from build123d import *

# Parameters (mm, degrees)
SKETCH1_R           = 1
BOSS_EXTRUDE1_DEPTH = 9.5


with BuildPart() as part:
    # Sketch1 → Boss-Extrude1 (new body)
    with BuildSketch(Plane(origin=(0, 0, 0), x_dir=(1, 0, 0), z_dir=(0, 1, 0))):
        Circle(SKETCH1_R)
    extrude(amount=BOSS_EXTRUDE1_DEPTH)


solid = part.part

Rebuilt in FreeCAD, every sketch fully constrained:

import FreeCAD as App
import Part
import Sketcher
from FreeCAD import Vector
Q = App.Units.Quantity

doc = App.newDocument("Part")
params = doc.addObject("Spreadsheet::Sheet", "Params")
for row, (alias, value) in enumerate([
    ("sketch1_diameter", "2 mm"),
    ("pad1_length", "9.5 mm"),
], start=1):
    params.set(f"A{row}", alias)
    params.set(f"B{row}", "=" + value)
    params.setAlias(f"B{row}", alias)

body = doc.addObject("PartDesign::Body", "Body")

# Sketch on XZ plane
sketch1 = doc.addObject("Sketcher::SketchObject", "Sketch")
body.addObject(sketch1)
sketch1.AttachmentSupport = (doc.XZ_Plane, [""])
sketch1.MapMode = "FlatFace"
sketch1.addGeometry(Part.Circle(Vector(0, 0, 0), Vector(0, 0, 1), 1), False)
sketch1.addConstraint([
    Sketcher.Constraint("Coincident", 0, 3, -1, 1),
    Sketcher.Constraint("Diameter", 0, Q("2 mm")),
])
sketch1.setExpression("Constraints[1]", "Params.sketch1_diameter")
pad1 = doc.addObject("PartDesign::Pad", "Pad")
body.addObject(pad1)
pad1.Profile = sketch1
pad1.setExpression("Length", "Params.pad1_length")
pad1.Reversed = True

doc.recompute()
